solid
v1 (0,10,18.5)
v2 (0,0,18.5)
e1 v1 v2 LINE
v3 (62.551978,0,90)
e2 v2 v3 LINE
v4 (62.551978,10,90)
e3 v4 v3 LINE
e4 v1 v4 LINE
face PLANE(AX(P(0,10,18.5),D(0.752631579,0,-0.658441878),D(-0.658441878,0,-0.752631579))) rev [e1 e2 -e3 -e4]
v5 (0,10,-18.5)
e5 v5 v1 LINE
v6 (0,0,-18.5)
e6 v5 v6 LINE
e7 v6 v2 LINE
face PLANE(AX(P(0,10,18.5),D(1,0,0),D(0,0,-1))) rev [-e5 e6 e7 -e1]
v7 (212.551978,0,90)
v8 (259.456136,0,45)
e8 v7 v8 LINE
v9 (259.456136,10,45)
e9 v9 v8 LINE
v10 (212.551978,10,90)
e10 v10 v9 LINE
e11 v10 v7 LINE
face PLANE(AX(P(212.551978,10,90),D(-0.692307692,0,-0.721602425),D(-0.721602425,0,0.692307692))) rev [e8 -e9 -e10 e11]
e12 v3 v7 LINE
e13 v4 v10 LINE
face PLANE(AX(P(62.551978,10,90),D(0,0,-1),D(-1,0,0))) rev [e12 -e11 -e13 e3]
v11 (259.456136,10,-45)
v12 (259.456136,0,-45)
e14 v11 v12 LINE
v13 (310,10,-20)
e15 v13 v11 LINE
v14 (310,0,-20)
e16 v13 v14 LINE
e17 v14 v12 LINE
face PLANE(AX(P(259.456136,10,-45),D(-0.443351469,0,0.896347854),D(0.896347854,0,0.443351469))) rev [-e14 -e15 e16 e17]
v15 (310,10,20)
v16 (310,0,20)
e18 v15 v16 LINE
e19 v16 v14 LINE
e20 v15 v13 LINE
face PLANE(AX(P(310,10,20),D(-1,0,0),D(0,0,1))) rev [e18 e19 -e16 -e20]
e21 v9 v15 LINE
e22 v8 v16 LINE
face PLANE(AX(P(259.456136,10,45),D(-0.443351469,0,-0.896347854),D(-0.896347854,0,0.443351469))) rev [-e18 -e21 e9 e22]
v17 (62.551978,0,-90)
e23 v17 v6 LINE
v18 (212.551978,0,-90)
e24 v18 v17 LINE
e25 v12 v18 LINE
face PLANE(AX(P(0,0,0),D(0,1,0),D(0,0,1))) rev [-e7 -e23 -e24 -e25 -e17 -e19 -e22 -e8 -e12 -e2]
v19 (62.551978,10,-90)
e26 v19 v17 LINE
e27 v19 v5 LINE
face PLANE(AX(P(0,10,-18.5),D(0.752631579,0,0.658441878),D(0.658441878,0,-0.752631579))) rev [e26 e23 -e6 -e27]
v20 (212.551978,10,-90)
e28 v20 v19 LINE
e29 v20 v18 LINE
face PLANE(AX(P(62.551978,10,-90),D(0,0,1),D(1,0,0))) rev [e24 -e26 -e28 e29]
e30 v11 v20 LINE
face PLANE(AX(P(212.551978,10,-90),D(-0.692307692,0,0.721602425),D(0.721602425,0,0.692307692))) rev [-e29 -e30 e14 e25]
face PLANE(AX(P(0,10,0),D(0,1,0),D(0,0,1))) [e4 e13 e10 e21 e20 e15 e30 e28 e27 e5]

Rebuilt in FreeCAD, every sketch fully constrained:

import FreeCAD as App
import Part
import Sketcher

V = App.Vector
Q = App.Units.Quantity

doc = App.newDocument("Part")
body = doc.addObject("PartDesign::Body", "Body")

sketch1 = doc.addObject("Sketcher::SketchObject", "Sketch")
body.addObject(sketch1)
sketch1.AttachmentSupport = (doc.XZ_Plane, [""])
sketch1.MapMode = "FlatFace"
sketch1.addGeometry([
    Part.LineSegment(V(310, 20, 0), V(310, -20, 0)),
    Part.LineSegment(V(310, -20, 0), V(259.456136, -45, 0)),
    Part.LineSegment(V(259.456136, -45, 0), V(212.551978, -90, 0)),
    Part.LineSegment(V(212.551978, -90, 0), V(62.551978, -90, 0)),
    Part.LineSegment(V(62.551978, -90, 0), V(0, -18.5, 0)),
    Part.LineSegment(V(0, -18.5, 0), V(0, 18.5, 0)),
    Part.LineSegment(V(0, 18.5, 0), V(62.551978, 90, 0)),
    Part.LineSegment(V(62.551978, 90, 0), V(212.551978, 90, 0)),
    Part.LineSegment(V(212.551978, 90, 0), V(259.456136, 45, 0)),
    Part.LineSegment(V(259.456136, 45, 0), V(310, 20, 0)),
], False)
sketch1.addConstraint([
    Sketcher.Constraint("Coincident", 0, 2, 1, 1),
    Sketcher.Constraint("Coincident", 1, 2, 2, 1),
    Sketcher.Constraint("Coincident", 2, 2, 3, 1),
    Sketcher.Constraint("Coincident", 3, 2, 4, 1),
    Sketcher.Constraint("Coincident", 4, 2, 5, 1),
    Sketcher.Constraint("Coincident", 5, 2, 6, 1),
    Sketcher.Constraint("Coincident", 6, 2, 7, 1),
    Sketcher.Constraint("Coincident", 7, 2, 8, 1),
    Sketcher.Constraint("Coincident", 8, 2, 9, 1),
    Sketcher.Constraint("Coincident", 9, 2, 0, 1),
    Sketcher.Constraint("Vertical", 0),
    Sketcher.Constraint("Horizontal", 3),
    Sketcher.Constraint("Vertical", 5),
    Sketcher.Constraint("Horizontal", 7),
    Sketcher.Constraint("Symmetric", 4, 2, 5, 2, -1, 1),
    Sketcher.Constraint("Symmetric", 3, 2, 6, 2, -1),
    Sketcher.Constraint("Symmetric", 1, 2, 8, 2, -1),
    Sketcher.Constraint("Vertical", 2, 2, 7, 2),
    Sketcher.Constraint("Equal", 1, 9),
    Sketcher.Constraint("DistanceX", 3, 2, 3, 1, Q("150 mm")),
    Sketcher.Constraint("DistanceY", 0, 2, 0, 1, Q("40 mm")),
    Sketcher.Constraint("DistanceY", 5, 1, 5, 2, Q("37 mm")),
    Sketcher.Constraint("Distance", 2, Q("65 mm")),
    Sketcher.Constraint("Distance", 4, Q("95 mm")),
    Sketcher.Constraint("DistanceX", -1, 1, 0, 2, Q("310 mm")),
    Sketcher.Constraint("DistanceY", 1, 2, -1, 1, Q("45 mm")),
    Sketcher.Constraint("DistanceY", 2, 2, -1, 1, Q("90 mm")),
])
pad1 = doc.addObject("PartDesign::Pad", "Pad")
body.addObject(pad1)
pad1.Profile = sketch1
pad1.Length = 10
pad1.Reversed = True

doc.recompute()
